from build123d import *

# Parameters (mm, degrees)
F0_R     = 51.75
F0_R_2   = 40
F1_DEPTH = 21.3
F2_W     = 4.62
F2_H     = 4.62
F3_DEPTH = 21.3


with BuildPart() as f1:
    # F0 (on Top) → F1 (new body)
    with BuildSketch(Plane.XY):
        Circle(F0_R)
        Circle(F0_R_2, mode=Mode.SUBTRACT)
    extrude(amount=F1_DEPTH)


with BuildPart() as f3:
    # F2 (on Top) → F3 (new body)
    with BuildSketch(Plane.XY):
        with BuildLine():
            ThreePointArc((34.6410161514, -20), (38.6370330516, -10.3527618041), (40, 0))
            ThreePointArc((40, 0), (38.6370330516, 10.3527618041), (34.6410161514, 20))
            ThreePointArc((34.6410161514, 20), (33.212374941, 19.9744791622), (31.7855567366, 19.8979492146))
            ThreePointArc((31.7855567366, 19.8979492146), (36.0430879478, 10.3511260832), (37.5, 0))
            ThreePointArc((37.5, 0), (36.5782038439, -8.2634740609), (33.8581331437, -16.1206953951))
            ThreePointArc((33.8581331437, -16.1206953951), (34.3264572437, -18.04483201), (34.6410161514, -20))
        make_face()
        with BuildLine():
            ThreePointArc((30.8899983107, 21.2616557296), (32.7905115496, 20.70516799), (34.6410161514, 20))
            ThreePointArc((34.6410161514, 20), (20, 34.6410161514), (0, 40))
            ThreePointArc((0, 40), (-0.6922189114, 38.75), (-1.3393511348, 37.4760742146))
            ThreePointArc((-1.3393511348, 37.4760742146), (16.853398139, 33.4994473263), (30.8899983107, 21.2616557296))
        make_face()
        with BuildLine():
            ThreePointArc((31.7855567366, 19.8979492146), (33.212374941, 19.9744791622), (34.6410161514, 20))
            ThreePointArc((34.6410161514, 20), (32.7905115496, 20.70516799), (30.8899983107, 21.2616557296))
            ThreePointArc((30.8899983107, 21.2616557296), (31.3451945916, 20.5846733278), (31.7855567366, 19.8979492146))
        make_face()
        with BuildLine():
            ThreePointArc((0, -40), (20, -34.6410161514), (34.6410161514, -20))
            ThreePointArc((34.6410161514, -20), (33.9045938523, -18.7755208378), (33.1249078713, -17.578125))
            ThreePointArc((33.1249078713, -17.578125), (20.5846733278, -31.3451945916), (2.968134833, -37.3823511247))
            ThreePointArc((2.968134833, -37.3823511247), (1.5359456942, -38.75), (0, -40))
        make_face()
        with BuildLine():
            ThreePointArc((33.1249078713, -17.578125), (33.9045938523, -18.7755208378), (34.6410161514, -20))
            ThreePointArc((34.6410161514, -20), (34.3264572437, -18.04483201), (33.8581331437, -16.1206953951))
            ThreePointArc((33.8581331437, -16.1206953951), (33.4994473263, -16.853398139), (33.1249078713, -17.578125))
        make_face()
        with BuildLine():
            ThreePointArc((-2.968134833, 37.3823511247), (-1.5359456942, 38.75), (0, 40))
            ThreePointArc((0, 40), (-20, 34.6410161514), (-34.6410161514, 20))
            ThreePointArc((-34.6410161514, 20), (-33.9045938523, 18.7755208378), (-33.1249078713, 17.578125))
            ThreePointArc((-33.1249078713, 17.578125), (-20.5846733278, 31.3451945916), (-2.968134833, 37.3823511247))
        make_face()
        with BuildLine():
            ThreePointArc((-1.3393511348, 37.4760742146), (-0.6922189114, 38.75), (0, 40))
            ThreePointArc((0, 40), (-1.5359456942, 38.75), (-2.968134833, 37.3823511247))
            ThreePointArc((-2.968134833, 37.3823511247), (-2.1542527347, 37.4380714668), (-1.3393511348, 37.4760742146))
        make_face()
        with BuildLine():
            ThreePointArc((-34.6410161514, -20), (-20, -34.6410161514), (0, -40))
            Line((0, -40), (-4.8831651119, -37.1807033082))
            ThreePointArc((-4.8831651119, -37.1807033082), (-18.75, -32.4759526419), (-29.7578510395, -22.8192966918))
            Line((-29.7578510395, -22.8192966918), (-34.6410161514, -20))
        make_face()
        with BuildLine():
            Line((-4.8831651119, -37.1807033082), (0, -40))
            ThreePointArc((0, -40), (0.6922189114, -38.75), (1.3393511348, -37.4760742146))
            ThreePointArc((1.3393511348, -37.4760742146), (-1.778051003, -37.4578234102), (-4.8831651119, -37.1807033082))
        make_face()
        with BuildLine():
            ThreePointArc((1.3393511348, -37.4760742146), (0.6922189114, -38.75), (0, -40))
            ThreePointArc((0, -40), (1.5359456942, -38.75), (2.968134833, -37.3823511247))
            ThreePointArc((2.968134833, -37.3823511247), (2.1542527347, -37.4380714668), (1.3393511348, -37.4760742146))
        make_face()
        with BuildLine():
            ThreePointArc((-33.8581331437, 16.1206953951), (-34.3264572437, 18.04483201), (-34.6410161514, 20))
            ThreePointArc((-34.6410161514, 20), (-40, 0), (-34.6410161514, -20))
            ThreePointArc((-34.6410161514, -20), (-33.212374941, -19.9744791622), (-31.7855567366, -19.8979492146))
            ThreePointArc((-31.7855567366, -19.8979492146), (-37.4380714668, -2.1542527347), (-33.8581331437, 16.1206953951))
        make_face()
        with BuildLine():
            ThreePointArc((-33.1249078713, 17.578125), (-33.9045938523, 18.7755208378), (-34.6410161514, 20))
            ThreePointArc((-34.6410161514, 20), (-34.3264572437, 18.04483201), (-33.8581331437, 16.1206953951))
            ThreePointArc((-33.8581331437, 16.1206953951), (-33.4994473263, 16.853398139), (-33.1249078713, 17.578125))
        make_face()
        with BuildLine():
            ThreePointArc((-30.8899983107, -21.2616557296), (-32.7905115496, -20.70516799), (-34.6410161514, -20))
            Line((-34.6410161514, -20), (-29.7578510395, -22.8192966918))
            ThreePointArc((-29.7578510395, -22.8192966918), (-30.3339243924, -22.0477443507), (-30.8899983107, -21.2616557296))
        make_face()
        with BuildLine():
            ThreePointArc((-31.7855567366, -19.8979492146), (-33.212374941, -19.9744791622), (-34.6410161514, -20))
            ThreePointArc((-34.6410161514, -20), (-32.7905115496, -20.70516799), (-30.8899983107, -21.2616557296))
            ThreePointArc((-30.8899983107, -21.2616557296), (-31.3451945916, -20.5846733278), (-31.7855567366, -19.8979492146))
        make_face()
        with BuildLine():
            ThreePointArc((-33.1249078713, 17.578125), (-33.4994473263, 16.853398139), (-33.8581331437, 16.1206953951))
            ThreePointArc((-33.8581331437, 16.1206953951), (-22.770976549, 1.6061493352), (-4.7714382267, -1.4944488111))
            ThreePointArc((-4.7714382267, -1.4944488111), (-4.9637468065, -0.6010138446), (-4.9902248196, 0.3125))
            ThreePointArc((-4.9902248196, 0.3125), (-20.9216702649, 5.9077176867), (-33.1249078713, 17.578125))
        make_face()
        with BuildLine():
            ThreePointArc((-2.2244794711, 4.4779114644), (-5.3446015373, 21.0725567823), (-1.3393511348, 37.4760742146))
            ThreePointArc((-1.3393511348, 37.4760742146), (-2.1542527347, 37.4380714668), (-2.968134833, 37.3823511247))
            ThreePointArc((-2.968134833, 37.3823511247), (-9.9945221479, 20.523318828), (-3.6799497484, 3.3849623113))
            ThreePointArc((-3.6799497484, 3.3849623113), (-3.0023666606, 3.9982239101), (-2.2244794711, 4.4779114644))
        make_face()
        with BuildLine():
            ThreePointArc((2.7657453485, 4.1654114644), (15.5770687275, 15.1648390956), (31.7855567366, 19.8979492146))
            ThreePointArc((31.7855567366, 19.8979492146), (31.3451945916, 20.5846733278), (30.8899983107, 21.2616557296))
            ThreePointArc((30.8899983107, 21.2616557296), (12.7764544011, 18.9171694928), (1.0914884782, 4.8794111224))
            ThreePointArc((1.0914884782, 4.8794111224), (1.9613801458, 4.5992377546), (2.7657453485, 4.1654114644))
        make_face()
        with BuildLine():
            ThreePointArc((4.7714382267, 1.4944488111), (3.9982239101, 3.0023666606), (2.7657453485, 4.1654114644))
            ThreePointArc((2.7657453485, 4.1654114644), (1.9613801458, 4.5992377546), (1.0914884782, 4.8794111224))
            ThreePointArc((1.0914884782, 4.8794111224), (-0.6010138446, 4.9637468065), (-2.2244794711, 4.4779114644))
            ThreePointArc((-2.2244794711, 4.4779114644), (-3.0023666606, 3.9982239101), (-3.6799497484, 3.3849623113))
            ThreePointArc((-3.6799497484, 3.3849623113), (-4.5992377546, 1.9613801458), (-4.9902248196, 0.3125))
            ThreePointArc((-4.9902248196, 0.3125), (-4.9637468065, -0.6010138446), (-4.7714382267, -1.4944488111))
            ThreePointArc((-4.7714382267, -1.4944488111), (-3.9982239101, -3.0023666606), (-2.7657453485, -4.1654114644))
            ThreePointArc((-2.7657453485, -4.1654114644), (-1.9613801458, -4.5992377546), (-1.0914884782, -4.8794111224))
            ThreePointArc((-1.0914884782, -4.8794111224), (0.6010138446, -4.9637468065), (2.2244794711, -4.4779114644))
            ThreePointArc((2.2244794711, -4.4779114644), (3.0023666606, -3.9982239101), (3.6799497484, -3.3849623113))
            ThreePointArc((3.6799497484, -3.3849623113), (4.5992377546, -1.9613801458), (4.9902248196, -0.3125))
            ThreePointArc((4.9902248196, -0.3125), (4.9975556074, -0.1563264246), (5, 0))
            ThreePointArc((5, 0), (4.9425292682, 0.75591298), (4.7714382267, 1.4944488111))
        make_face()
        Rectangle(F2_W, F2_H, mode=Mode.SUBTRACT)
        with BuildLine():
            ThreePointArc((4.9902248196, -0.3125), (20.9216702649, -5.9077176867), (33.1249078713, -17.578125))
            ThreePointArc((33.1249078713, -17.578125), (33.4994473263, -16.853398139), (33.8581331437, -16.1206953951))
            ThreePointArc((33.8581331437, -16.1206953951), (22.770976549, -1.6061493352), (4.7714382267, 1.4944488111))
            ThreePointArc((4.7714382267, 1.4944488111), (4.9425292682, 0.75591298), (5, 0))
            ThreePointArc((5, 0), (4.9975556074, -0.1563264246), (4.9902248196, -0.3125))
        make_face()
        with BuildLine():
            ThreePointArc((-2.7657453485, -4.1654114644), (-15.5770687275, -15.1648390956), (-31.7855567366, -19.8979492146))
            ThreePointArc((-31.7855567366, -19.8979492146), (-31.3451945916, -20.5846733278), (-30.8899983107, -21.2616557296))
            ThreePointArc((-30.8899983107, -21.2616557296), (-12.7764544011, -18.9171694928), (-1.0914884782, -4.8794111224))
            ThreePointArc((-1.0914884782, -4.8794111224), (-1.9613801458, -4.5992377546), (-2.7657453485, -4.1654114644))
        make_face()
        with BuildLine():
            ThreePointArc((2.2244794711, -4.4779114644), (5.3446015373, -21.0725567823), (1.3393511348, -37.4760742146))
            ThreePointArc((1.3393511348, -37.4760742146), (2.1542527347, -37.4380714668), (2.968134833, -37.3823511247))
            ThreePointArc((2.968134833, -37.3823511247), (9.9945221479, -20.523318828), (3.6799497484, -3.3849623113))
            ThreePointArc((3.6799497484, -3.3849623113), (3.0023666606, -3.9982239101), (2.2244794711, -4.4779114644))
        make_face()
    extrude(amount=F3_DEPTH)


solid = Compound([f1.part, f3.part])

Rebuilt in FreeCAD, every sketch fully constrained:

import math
import FreeCAD as App
import Part
import Sketcher
from FreeCAD import Vector
Q = App.Units.Quantity

doc = App.newDocument("Part")
body = doc.addObject("PartDesign::Body", "Body")

sketch1 = body.newObject("Sketcher::SketchObject", "Sketch")
sketch1.AttachmentSupport = (doc.getObject("XY_Plane"), [""])
sketch1.MapMode = "FlatFace"
sketch1.addGeometry([
    Part.Circle(Vector(0, 0, 0), Vector(0, 0, 1), 52),
    Part.Circle(Vector(0, 0, 0), Vector(0, 0, 1), 40),
], False)
sketch1.addConstraint([
    Sketcher.Constraint("Coincident", 0, 3, -1, 1),
    Sketcher.Constraint("Coincident", 1, 3, -1, 1),
    Sketcher.Constraint("Diameter", 1, Q("80 mm")),
    Sketcher.Constraint("Diameter", 0, Q("103.5 mm")),
])
pad1 = body.newObject("PartDesign::Pad", "Pad")
pad1.Profile = sketch1
pad1.Length = 21.3
body2 = doc.addObject("PartDesign::Body", "Body001")

sketch2 = body2.newObject("Sketcher::SketchObject", "Sketch001")
sketch2.AttachmentSupport = (doc.getObject("XY_Plane001"), [""])
sketch2.MapMode = "FlatFace"
sketch2.addGeometry([
    Part.ArcOfCircle(Part.Circle(Vector(0, 0, 0), Vector(0, 0, 1), 40), math.radians(150), math.radians(210)),
    Part.ArcOfCircle(Part.Circle(Vector(0, 0, 0), Vector(0, 0, 1), 40), math.radians(-150), math.radians(-90)),
    Part.ArcOfCircle(Part.Circle(Vector(0, 0, 0), Vector(0, 0, 1), 40), math.radians(-90), math.radians(-30)),
    Part.ArcOfCircle(Part.Circle(Vector(0, 0, 0), Vector(0, 0, 1), 40), math.radians(-30), math.radians(0)),
    Part.ArcOfCircle(Part.Circle(Vector(0, 0, 0), Vector(0, 0, 1), 40), math.radians(0), math.radians(30)),
    Part.ArcOfCircle(Part.Circle(Vector(0, 0, 0), Vector(0, 0, 1), 40), math.radians(30), math.radians(90)),
    Part.ArcOfCircle(Part.Circle(Vector(0, 0, 0), Vector(0, 0, 1), 40), math.radians(90), math.radians(150)),
    Part.ArcOfCircle(Part.Circle(Vector(0, 0, 0), Vector(0, 0, 1), 37.5), math.radians(-145.46), math.radians(-142.52)),
    Part.ArcOfCircle(Part.Circle(Vector(-24.8, 3, 0), Vector(0, 0, 1), 25), math.radians(-104), math.radians(-18)),
    Part.ArcOfCircle(Part.Circle(Vector(0, 0, 0), Vector(0, 0, 1), 5), math.radians(-103), math.radians(-64)),
    Part.ArcOfCircle(Part.Circle(Vector(-34.6, -20, 0), Vector(0, 0, 1), 40), math.radians(-26), math.radians(23)),
    Part.ArcOfCircle(Part.Circle(Vector(0, 0, 0), Vector(0, 0, 1), 37.5), math.radians(-97.48), math.radians(-87.95)),
    Part.ArcOfCircle(Part.Circle(Vector(0, 0, 0), Vector(0, 0, 1), 37.5), math.radians(-143), math.radians(-97)),
    Part.ArcOfCircle(Part.Circle(Vector(0, 0, 0), Vector(0, 0, 1), 5), math.radians(-43), math.radians(-4)),
    Part.ArcOfCircle(Part.Circle(Vector(0, -40, 0), Vector(0, 0, 1), 40), math.radians(34), math.radians(83)),
    Part.ArcOfCircle(Part.Circle(Vector(0, 0, 0), Vector(0, 0, 1), 37.5), math.radians(-85), math.radians(-28)),
    Part.ArcOfCircle(Part.Circle(Vector(-15, -20, 0), Vector(0, 0, 1), 25), math.radians(-44), math.radians(42)),
    Part.ArcOfCircle(Part.Circle(Vector(0, 0, 0), Vector(0, 0, 1), 37.5), math.radians(155), math.radians(212)),
    Part.ArcOfCircle(Part.Circle(Vector(-9.8, 23, 0), Vector(0, 0, 1), 25), math.radians(-164), math.radians(-78)),
    Part.ArcOfCircle(Part.Circle(Vector(0, 0, 0), Vector(0, 0, 1), 5), math.radians(-163), math.radians(-124)),
    Part.ArcOfCircle(Part.Circle(Vector(-34.6, 20, 0), Vector(0, 0, 1), 40), math.radians(-86), math.radians(-37)),
    Part.ArcOfCircle(Part.Circle(Vector(0, 0, 0), Vector(0, 0, 1), 37.5), math.radians(-25), math.radians(0)),
    Part.ArcOfCircle(Part.Circle(Vector(9.8, -23, 0), Vector(0, 0, 1), 25), math.radians(16), math.radians(102)),
    Part.ArcOfCircle(Part.Circle(Vector(0, 0, 0), Vector(0, 0, 1), 5), math.radians(17), math.radians(56)),
    Part.ArcOfCircle(Part.Circle(Vector(34.6, -20, 0), Vector(0, 0, 1), 40), math.radians(94), math.radians(143)),
    Part.ArcOfCircle(Part.Circle(Vector(0, 0, 0), Vector(0, 0, 1), 37.5), math.radians(0), math.radians(32)),
    Part.LineSegment(Vector(2.3, -2.3, 0), Vector(-2.3, -2.3, 0)),
    Part.LineSegment(Vector(-2.3, -2.3, 0), Vector(-2.3, 2.3, 0)),
    Part.LineSegment(Vector(-2.3, 2.3, 0), Vector(2.3, 2.3, 0)),
    Part.LineSegment(Vector(2.3, 2.3, 0), Vector(2.3, -2.3, 0)),
    Part.ArcOfCircle(Part.Circle(Vector(0, 40, 0), Vector(0, 0, 1), 40), math.radians(-146), math.radians(-97)),
    Part.ArcOfCircle(Part.Circle(Vector(0, 0, 0), Vector(0, 0, 1), 37.5), math.radians(95), math.radians(152)),
    Part.ArcOfCircle(Part.Circle(Vector(15, 20, 0), Vector(0, 0, 1), 25), math.radians(136), math.radians(222)),
    Part.ArcOfCircle(Part.Circle(Vector(0, 0, 0), Vector(0, 0, 1), 5), math.radians(137), math.radians(176)),
    Part.ArcOfCircle(Part.Circle(Vector(34.6, 20, 0), Vector(0, 0, 1), 40), math.radians(154), math.radians(203)),
    Part.ArcOfCircle(Part.Circle(Vector(0, 0, 0), Vector(0, 0, 1), 37.5), math.radians(35), math.radians(92)),
    Part.ArcOfCircle(Part.Circle(Vector(24.8, -3, 0), Vector(0, 0, 1), 25), math.radians(76), math.radians(162)),
    Part.ArcOfCircle(Part.Circle(Vector(0, 0, 0), Vector(0, 0, 1), 5), math.radians(77), math.radians(116)),
], False)
sketch2.addConstraint([
    Sketcher.Constraint("Tangent", 0, 2, 1, 1),
    Sketcher.Constraint("Tangent", 1, 2, 2, 1),
    Sketcher.Constraint("Tangent", 2, 2, 3, 1),
    Sketcher.Constraint("Tangent", 3, 2, 4, 1),
    Sketcher.Constraint("Tangent", 4, 2, 5, 1),
    Sketcher.Constraint("Tangent", 5, 2, 6, 1),
    Sketcher.Constraint("Tangent", 6, 2, 0, 1),
    Sketcher.Constraint("Coincident", 7, 1, 8, 1),
    Sketcher.Constraint("Coincident", 8, 2, 9, 1),
    Sketcher.Constraint("Coincident", 9, 2, 10, 2),
    Sketcher.Constraint("Coincident", 10, 1, 11, 2),
    Sketcher.Constraint("Tangent", 11, 1, 12, 2),
    Sketcher.Constraint("Tangent", 12, 1, 7, 2),
    Sketcher.Constraint("Coincident", 13, 2, 14, 2),
    Sketcher.Constraint("Coincident", 14, 1, 15, 2),
    Sketcher.Constraint("Coincident", 15, 1, 16, 1),
    Sketcher.Constraint("Coincident", 16, 2, 13, 1),
    Sketcher.Constraint("Coincident", 17, 1, 18, 1),
    Sketcher.Constraint("Coincident", 18, 2, 19, 1),
    Sketcher.Constraint("Coincident", 19, 2, 20, 2),
    Sketcher.Constraint("Coincident", 20, 1, 17, 2),
    Sketcher.Constraint("Coincident", 21, 1, 22, 1),
    Sketcher.Constraint("Coincident", 22, 2, 23, 1),
    Sketcher.Constraint("Coincident", 23, 2, 24, 2),
    Sketcher.Constraint("Coincident", 24, 1, 25, 2),
    Sketcher.Constraint("Tangent", 25, 1, 21, 2),
    Sketcher.Constraint("Coincident", 26, 2, 27, 1),
    Sketcher.Constraint("Coincident", 27, 2, 28, 1),
    Sketcher.Constraint("Coincident", 28, 2, 29, 1),
    Sketcher.Constraint("Coincident", 29, 2, 26, 1),
    Sketcher.Constraint("Coincident", 30, 1, 31, 2),
    Sketcher.Constraint("Coincident", 31, 1, 32, 1),
    Sketcher.Constraint("Coincident", 32, 2, 33, 1),
    Sketcher.Constraint("Coincident", 33, 2, 30, 2),
    Sketcher.Constraint("Coincident", 34, 1, 35, 2),
    Sketcher.Constraint("Coincident", 35, 1, 36, 1),
    Sketcher.Constraint("Coincident", 36, 2, 37, 1),
    Sketcher.Constraint("Coincident", 37, 2, 34, 2),
    Sketcher.Constraint("Horizontal", 26),
    Sketcher.Constraint("Vertical", 27),
    Sketcher.Constraint("Horizontal", 28),
    Sketcher.Constraint("Vertical", 29),
    Sketcher.Constraint("Coincident", 0, 3, -1, 1),
    Sketcher.Constraint("Coincident", 2, 3, -1, 1),
    Sketcher.Constraint("Coincident", 4, 3, -1, 1),
    Sketcher.Constraint("Coincident", 7, 3, -1, 1),
    Sketcher.Constraint("Coincident", 9, 3, -1, 1),
    Sketcher.Constraint("Coincident", 11, 3, -1, 1),
    Sketcher.Constraint("Coincident", 13, 3, -1, 1),
    Sketcher.Constraint("Coincident", 15, 3, -1, 1),
    Sketcher.Constraint("Coincident", 17, 3, -1, 1),
    Sketcher.Constraint("Coincident", 19, 3, -1, 1),
    Sketcher.Constraint("Coincident", 21, 3, -1, 1),
    Sketcher.Constraint("Coincident", 23, 3, -1, 1),
    Sketcher.Constraint("Coincident", 31, 3, -1, 1),
    Sketcher.Constraint("Coincident", 33, 3, -1, 1),
    Sketcher.Constraint("Coincident", 35, 3, -1, 1),
    Sketcher.Constraint("Coincident", 37, 3, -1, 1),
    Sketcher.Constraint("Coincident", 0, 2, 10, 3),
    Sketcher.Constraint("Coincident", 1, 2, 14, 3),
    Sketcher.Constraint("Coincident", 2, 2, 24, 3),
    Sketcher.Constraint("Coincident", 4, 2, 34, 3),
    Sketcher.Constraint("Coincident", 5, 2, 30, 3),
    Sketcher.Constraint("Coincident", 6, 2, 20, 3),
    Sketcher.Constraint("Equal", 6, 10),
    Sketcher.Constraint("Equal", 9, 13),
    Sketcher.Constraint("Equal", 10, 14),
    Sketcher.Constraint("Equal", 12, 15),
    Sketcher.Constraint("Equal", 8, 16),
    Sketcher.Constraint("Equal", 15, 17),
    Sketcher.Constraint("Equal", 16, 18),
    Sketcher.Constraint("Equal", 13, 19),
    Sketcher.Constraint("Equal", 14, 20),
    Sketcher.Constraint("Equal", 17, 21),
    Sketcher.Constraint("Equal", 18, 22),
    Sketcher.Constraint("Equal", 19, 23),
    Sketcher.Constraint("Equal", 20, 24),
    Sketcher.Constraint("Equal", 21, 25),
    Sketcher.Constraint("Equal", 24, 30),
    Sketcher.Constraint("Equal", 25, 31),
    Sketcher.Constraint("Equal", 22, 32),
    Sketcher.Constraint("Equal", 23, 33),
    Sketcher.Constraint("Equal", 30, 34),
    Sketcher.Constraint("Equal", 31, 35),
    Sketcher.Constraint("Equal", 32, 36),
    Sketcher.Constraint("Equal", 33, 37),
    Sketcher.Constraint("Symmetric", 18, 3, 22, 3, -1, 1),
    Sketcher.Constraint("Symmetric", 16, 3, 32, 3, -1, 1),
    Sketcher.Constraint("Symmetric", 8, 3, 36, 3, -1, 1),
    Sketcher.Constraint("Symmetric", 26, 2, 28, 2, -1, 1),
    Sketcher.Constraint("PointOnObject", 14, 3, -2),
    Sketcher.Constraint("PointOnObject", 30, 3, -2),
    Sketcher.Constraint("PointOnObject", 3, 2, -1),
    Sketcher.Constraint("PointOnObject", 25, 1, -1),
    Sketcher.Constraint("Horizontal", 10, 3, 16, 3),
    Sketcher.Constraint("Horizontal", 16, 3, 24, 3),
    Sketcher.Constraint("Horizontal", 20, 3, 32, 3),
    Sketcher.Constraint("Horizontal", 32, 3, 34, 3),
    Sketcher.Constraint("Equal", 28, 27),
    Sketcher.Constraint("Radius", 0, Q("40 mm")),
    Sketcher.Constraint("Radius", 8, Q("25 mm")),
    Sketcher.Constraint("Radius", 9, Q("5 mm")),
    Sketcher.Constraint("Radius", 7, Q("37.5 mm")),
    Sketcher.Constraint("DistanceY", 10, 3, -1, 1, Q("20 mm")),
    Sketcher.Constraint("DistanceX", 16, 3, -1, 1, Q("15 mm")),
    Sketcher.Constraint("DistanceX", 26, 2, 26, 1, Q("4.62 mm")),
    Sketcher.Constraint("DistanceX", 7, 1, -1, 1, Q("30.889998 mm")),
    Sketcher.Constraint("DistanceX", 8, 3, -1, 1, Q("24.820508 mm")),
    Sketcher.Constraint("DistanceX", 18, 3, -1, 1, Q("9.820508 mm")),
    Sketcher.Constraint("DistanceY", -1, 1, 18, 3, Q("22.990381 mm")),
    Sketcher.Constraint("DistanceX", 12, 1, -1, 1, Q("29.757851 mm")),
    Sketcher.Constraint("DistanceX", 11, 1, -1, 1, Q("4.883165 mm")),
])
pad2 = body2.newObject("PartDesign::Pad", "Pad001")
pad2.Profile = sketch2
pad2.Length = 21.3

doc.recompute()
